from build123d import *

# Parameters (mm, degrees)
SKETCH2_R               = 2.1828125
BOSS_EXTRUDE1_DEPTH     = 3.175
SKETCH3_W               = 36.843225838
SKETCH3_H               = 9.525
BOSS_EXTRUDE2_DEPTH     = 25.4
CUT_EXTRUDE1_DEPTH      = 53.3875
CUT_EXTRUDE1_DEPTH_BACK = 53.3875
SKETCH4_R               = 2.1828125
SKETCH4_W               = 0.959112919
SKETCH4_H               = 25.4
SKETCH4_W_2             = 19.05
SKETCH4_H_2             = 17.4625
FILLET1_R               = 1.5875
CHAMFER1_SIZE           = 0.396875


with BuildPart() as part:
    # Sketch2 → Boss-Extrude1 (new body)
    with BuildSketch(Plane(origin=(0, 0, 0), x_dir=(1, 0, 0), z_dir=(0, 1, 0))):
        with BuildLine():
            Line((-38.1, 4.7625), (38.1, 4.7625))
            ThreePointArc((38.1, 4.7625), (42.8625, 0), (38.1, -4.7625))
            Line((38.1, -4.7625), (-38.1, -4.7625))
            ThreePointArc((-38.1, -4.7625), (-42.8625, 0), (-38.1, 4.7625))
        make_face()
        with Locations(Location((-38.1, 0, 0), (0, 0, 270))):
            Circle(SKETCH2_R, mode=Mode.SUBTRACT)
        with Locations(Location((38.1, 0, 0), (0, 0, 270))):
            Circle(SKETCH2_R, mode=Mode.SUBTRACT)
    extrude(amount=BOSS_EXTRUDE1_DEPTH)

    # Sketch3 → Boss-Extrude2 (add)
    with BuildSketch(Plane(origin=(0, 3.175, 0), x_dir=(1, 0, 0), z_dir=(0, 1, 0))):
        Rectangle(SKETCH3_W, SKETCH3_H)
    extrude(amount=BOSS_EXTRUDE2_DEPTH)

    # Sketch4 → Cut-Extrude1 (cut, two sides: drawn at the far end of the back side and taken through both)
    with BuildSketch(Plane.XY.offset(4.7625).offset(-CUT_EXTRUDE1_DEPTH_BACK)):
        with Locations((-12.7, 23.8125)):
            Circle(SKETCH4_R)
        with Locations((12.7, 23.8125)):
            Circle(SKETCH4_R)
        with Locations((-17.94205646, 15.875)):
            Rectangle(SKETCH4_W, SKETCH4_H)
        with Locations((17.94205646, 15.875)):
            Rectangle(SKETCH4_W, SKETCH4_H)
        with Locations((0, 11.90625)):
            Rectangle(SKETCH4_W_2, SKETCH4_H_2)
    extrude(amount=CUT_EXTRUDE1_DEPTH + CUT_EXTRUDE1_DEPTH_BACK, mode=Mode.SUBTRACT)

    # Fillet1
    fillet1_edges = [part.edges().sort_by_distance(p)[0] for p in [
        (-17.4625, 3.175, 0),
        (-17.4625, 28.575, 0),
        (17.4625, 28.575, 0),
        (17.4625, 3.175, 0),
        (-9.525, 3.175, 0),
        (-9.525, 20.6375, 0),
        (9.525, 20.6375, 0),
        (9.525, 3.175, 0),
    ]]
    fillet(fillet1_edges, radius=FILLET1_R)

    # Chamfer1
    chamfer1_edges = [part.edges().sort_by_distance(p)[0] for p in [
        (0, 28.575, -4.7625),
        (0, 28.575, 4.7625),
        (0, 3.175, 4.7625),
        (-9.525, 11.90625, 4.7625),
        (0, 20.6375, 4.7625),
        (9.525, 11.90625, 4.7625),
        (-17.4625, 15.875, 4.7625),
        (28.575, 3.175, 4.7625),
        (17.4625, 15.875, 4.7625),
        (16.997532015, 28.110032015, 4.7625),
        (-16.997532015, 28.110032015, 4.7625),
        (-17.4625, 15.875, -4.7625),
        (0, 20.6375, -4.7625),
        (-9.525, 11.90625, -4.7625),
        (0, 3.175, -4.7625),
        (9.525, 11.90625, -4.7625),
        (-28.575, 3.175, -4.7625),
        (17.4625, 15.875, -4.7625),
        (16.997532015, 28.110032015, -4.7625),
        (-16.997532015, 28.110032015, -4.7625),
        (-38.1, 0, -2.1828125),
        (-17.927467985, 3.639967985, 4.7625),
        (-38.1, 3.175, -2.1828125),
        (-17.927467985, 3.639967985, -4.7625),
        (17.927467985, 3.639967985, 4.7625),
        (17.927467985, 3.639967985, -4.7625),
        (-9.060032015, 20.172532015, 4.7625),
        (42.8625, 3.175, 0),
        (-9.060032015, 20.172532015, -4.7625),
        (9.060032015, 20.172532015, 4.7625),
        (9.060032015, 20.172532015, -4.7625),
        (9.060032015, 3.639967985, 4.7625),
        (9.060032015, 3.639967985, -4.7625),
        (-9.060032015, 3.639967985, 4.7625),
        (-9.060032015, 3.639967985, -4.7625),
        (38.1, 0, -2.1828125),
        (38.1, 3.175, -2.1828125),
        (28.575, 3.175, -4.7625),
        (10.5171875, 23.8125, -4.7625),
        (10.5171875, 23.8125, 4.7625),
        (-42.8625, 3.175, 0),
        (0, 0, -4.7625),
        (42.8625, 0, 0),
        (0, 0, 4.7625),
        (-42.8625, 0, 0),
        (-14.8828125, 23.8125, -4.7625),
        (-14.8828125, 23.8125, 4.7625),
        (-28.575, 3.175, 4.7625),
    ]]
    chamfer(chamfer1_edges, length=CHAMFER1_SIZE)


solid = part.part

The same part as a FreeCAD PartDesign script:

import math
import FreeCAD as App
import Part
import Sketcher
from FreeCAD import Vector
Q = App.Units.Quantity


def edges_at(feature, points):
    """Names of the edges that pass closest to the given points."""
    edges = feature.Shape.Edges
    near = lambda p: min(range(len(edges)), key=lambda i: edges[i].distToShape(Part.Vertex(*p))[0])
    return sorted({f"Edge{near(p) + 1}" for p in points})

doc = App.newDocument("Part")
params = doc.addObject("Spreadsheet::Sheet", "Params")
for row, (alias, value) in enumerate([
    ("sketch1_width", "3 in"),
    ("sketch1_diameter", "0.171875 in"),
    ("sketch1_radius", "0.1875 in"),
    ("pad1_length", "0.125 in"),
    ("sketch2_height", "0.375 in"),
    ("pad2_length", "1 in"),
    ("sketch3_height", "1 in"),
    ("sketch3_diameter", "0.171875 in"),
    ("sketch3_width", "0.75 in"),
    ("sketch3_height2", "0.6875 in"),
    ("fillet_radius", "0.0625 in"),
    ("chamfer_size", "0.015625 in"),
], start=1):
    params.set(f"A{row}", alias)
    params.set(f"B{row}", "=" + value)
    params.setAlias(f"B{row}", alias)

body = doc.addObject("PartDesign::Body", "Body")

sketch1 = body.newObject("Sketcher::SketchObject", "Sketch")
sketch1.AttachmentSupport = (doc.getObject("XZ_Plane"), [""])
sketch1.MapMode = "FlatFace"
sketch1.addGeometry([
    Part.LineSegment(Vector(38.1, -4.8, 0), Vector(-38.1, -4.8, 0)),
    Part.ArcOfCircle(Part.Circle(Vector(-38.1, 0, 0), Vector(0, 0, 1), 4.8), math.radians(90), math.radians(270)),
    Part.LineSegment(Vector(-38.1, 4.8, 0), Vector(38.1, 4.8, 0)),
    Part.ArcOfCircle(Part.Circle(Vector(38.1, 0, 0), Vector(0, 0, 1), 4.8), math.radians(-90), math.radians(90)),
    Part.Circle(Vector(38.1, 0, 0), Vector(0, 0, 1), 2.2),
    Part.Circle(Vector(-38.1, 0, 0), Vector(0, 0, 1), 2.2),
], False)
sketch1.addConstraint([
    Sketcher.Constraint("Tangent", 0, 2, 1, 2),
    Sketcher.Constraint("Tangent", 1, 1, 2, 1),
    Sketcher.Constraint("Tangent", 2, 2, 3, 2),
    Sketcher.Constraint("Tangent", 3, 1, 0, 1),
    Sketcher.Constraint("Horizontal", 0),
    Sketcher.Constraint("Horizontal", 2),
    Sketcher.Constraint("Coincident", 4, 3, 3, 3),
    Sketcher.Constraint("Coincident", 5, 3, 1, 3),
    Sketcher.Constraint("Equal", 4, 5),
    Sketcher.Constraint("Symmetric", 1, 3, 3, 3, -1, 1),
    Sketcher.Constraint("DistanceX", 0, 2, 0, 1, Q("3 in")),
    Sketcher.Constraint("Diameter", 4, Q("0.171875 in")),
    Sketcher.Constraint("Radius", 1, Q("0.1875 in")),
])
sketch1.setExpression("Constraints[10]", "Params.sketch1_width")
sketch1.setExpression("Constraints[11]", "Params.sketch1_diameter")
sketch1.setExpression("Constraints[12]", "Params.sketch1_radius")
pad1 = body.newObject("PartDesign::Pad", "Pad")
pad1.Profile = sketch1
pad1.setExpression("Length", "Params.pad1_length")
pad1.Reversed = True

sketch2 = body.newObject("Sketcher::SketchObject", "Sketch001")
sketch2.AttachmentSupport = (doc.getObject("XZ_Plane"), [""])
sketch2.MapMode = "FlatFace"
sketch2.AttachmentOffset = App.Placement(Vector(0, 0, -0.125 * 25.4), App.Rotation())
sketch2.addGeometry([
    Part.LineSegment(Vector(-18, -5, 0), Vector(-18, 5, 0)),
    Part.LineSegment(Vector(-18, 5, 0), Vector(18, 5, 0)),
    Part.LineSegment(Vector(18, 5, 0), Vector(18, -5, 0)),
    Part.LineSegment(Vector(18, -5, 0), Vector(-18, -5, 0)),
], False)
sketch2.addConstraint([
    Sketcher.Constraint("Coincident", 0, 2, 1, 1),
    Sketcher.Constraint("Coincident", 1, 2, 2, 1),
    Sketcher.Constraint("Coincident", 2, 2, 3, 1),
    Sketcher.Constraint("Coincident", 3, 2, 0, 1),
    Sketcher.Constraint("Vertical", 0),
    Sketcher.Constraint("Horizontal", 1),
    Sketcher.Constraint("Vertical", 2),
    Sketcher.Constraint("Horizontal", 3),
    Sketcher.Constraint("Symmetric", 0, 2, 2, 2, -1, 1),
    Sketcher.Constraint("DistanceY", 0, 1, 0, 2, Q("0.375 in")),
    Sketcher.Constraint("DistanceX", 1, 1, 1, 2, Q("36.843226 mm")),
])
sketch2.setExpression("Constraints[9]", "Params.sketch2_height")
pad2 = body.newObject("PartDesign::Pad", "Pad001")
pad2.Profile = sketch2
pad2.setExpression("Length", "Params.pad2_length")
pad2.Reversed = True

sketch3 = body.newObject("Sketcher::SketchObject", "Sketch002")
sketch3.AttachmentSupport = (doc.getObject("XY_Plane"), [""])
sketch3.MapMode = "FlatFace"
sketch3.AttachmentOffset = App.Placement(Vector(0, 0, 0.1875 * 25.4), App.Rotation())
sketch3.addGeometry([
    Part.Circle(Vector(-12.7, 23.8, 0), Vector(0, 0, 1), 2.2),
    Part.Circle(Vector(12.7, 23.8, 0), Vector(0, 0, 1), 2.2),
    Part.LineSegment(Vector(-18.4, 28.6, 0), Vector(-18.4, 3.2, 0)),
    Part.LineSegment(Vector(-18.4, 3.2, 0), Vector(-17.5, 3.2, 0)),
    Part.LineSegment(Vector(-17.5, 3.2, 0), Vector(-17.5, 28.6, 0)),
    Part.LineSegment(Vector(-17.5, 28.6, 0), Vector(-18.4, 28.6, 0)),
    Part.LineSegment(Vector(17.5, 28.6, 0), Vector(17.5, 3.2, 0)),
    Part.LineSegment(Vector(17.5, 3.2, 0), Vector(18.4, 3.2, 0)),
    Part.LineSegment(Vector(18.4, 3.2, 0), Vector(18.4, 28.6, 0)),
    Part.LineSegment(Vector(18.4, 28.6, 0), Vector(17.5, 28.6, 0)),
    Part.LineSegment(Vector(-9.5, 20.6, 0), Vector(-9.5, 3.2, 0)),
    Part.LineSegment(Vector(-9.5, 3.2, 0), Vector(9.5, 3.2, 0)),
    Part.LineSegment(Vector(9.5, 3.2, 0), Vector(9.5, 20.6, 0)),
    Part.LineSegment(Vector(9.5, 20.6, 0), Vector(-9.5, 20.6, 0)),
], False)
sketch3.addConstraint([
    Sketcher.Constraint("Coincident", 2, 2, 3, 1),
    Sketcher.Constraint("Coincident", 3, 2, 4, 1),
    Sketcher.Constraint("Coincident", 4, 2, 5, 1),
    Sketcher.Constraint("Coincident", 5, 2, 2, 1),
    Sketcher.Constraint("Coincident", 6, 2, 7, 1),
    Sketcher.Constraint("Coincident", 7, 2, 8, 1),
    Sketcher.Constraint("Coincident", 8, 2, 9, 1),
    Sketcher.Constraint("Coincident", 9, 2, 6, 1),
    Sketcher.Constraint("Coincident", 10, 2, 11, 1),
    Sketcher.Constraint("Coincident", 11, 2, 12, 1),
    Sketcher.Constraint("Coincident", 12, 2, 13, 1),
    Sketcher.Constraint("Coincident", 13, 2, 10, 1),
    Sketcher.Constraint("Vertical", 2),
    Sketcher.Constraint("Horizontal", 3),
    Sketcher.Constraint("Vertical", 4),
    Sketcher.Constraint("Horizontal", 5),
    Sketcher.Constraint("Vertical", 6),
    Sketcher.Constraint("Horizontal", 7),
    Sketcher.Constraint("Vertical", 8),
    Sketcher.Constraint("Horizontal", 9),
    Sketcher.Constraint("Vertical", 10),
    Sketcher.Constraint("Horizontal", 11),
    Sketcher.Constraint("Vertical", 12),
    Sketcher.Constraint("Horizontal", 13),
    Sketcher.Constraint("Equal", 0, 1),
    Sketcher.Constraint("Symmetric", 0, 3, 1, 3, -2),
    Sketcher.Constraint("Symmetric", 3, 2, 6, 2, -2),
    Sketcher.Constraint("Symmetric", 5, 2, 8, 2, -2),
    Sketcher.Constraint("Horizontal", 7, 2, 10, 2),
    Sketcher.Constraint("DistanceY", 2, 2, 2, 1, Q("1 in")),
    Sketcher.Constraint("Diameter", 0, Q("0.171875 in")),
    Sketcher.Constraint("DistanceX", 0, 3, 1, 3, Q("1 in")),
    Sketcher.Constraint("DistanceX", 11, 1, 11, 2, Q("0.75 in")),
    Sketcher.Constraint("DistanceY", 10, 2, 10, 1, Q("0.6875 in")),
    Sketcher.Constraint("DistanceY", -1, 1, 0, 3, Q("0.9375 in")),
    Sketcher.Constraint("DistanceY", -1, 1, 2, 2, Q("0.125 in")),
    Sketcher.Constraint("DistanceX", 3, 2, -1, 1, Q("0.6875 in")),
    Sketcher.Constraint("DistanceX", 10, 2, -1, 1, Q("0.375 in")),
    Sketcher.Constraint("DistanceX", 3, 1, 3, 2, Q("0.959113 mm")),
])
sketch3.setExpression("Constraints[29]", "Params.sketch3_height")
sketch3.setExpression("Constraints[30]", "Params.sketch3_diameter")
sketch3.setExpression("Constraints[32]", "Params.sketch3_width")
sketch3.setExpression("Constraints[33]", "Params.sketch3_height2")
pocket1 = body.newObject("PartDesign::Pocket", "Pocket")
pocket1.Profile = sketch3
pocket1.Type = "ThroughAll"
pocket1.Midplane = True
doc.recompute()

fillet = body.newObject("PartDesign::Fillet", "Fillet")
fillet.Base = (pocket1, edges_at(pocket1, [
    (-17.463, 3.175, 0),
    (-17.463, 28.575, 0),
    (17.463, 28.575, 0),
    (17.463, 3.175, 0),
    (-9.525, 3.175, 0),
    (-9.525, 20.637, 0),
    (9.525, 20.637, 0),
    (9.525, 3.175, 0),
]))
fillet.setExpression("Radius", "Params.fillet_radius")
doc.recompute()

chamfer = body.newObject("PartDesign::Chamfer", "Chamfer")
chamfer.Base = (fillet, edges_at(fillet, [
    (0, 28.575, -4.763),
    (0, 28.575, 4.763),
    (0, 3.175, 4.763),
    (-9.525, 11.906, 4.763),
    (0, 20.637, 4.763),
    (9.525, 11.906, 4.763),
    (-17.463, 15.875, 4.763),
    (28.575, 3.175, 4.763),
    (17.463, 15.875, 4.763),
    (16.998, 28.11, 4.763),
    (-16.998, 28.11, 4.763),
    (-17.463, 15.875, -4.763),
    (0, 20.637, -4.763),
    (-9.525, 11.906, -4.763),
    (0, 3.175, -4.763),
    (9.525, 11.906, -4.763),
    (-28.575, 3.175, -4.763),
    (17.463, 15.875, -4.763),
    (16.998, 28.11, -4.763),
    (-16.998, 28.11, -4.763),
    (-38.1, 0, -2.183),
    (-17.927, 3.64, 4.763),
    (-38.1, 3.175, -2.183),
    (-17.927, 3.64, -4.763),
    (17.927, 3.64, 4.763),
    (17.927, 3.64, -4.763),
    (-9.06, 20.173, 4.763),
    (42.862, 3.175, 0),
    (-9.06, 20.173, -4.763),
    (9.06, 20.173, 4.763),
    (9.06, 20.173, -4.763),
    (9.06, 3.64, 4.763),
    (9.06, 3.64, -4.763),
    (-9.06, 3.64, 4.763),
    (-9.06, 3.64, -4.763),
    (38.1, 0, -2.183),
    (38.1, 3.175, -2.183),
    (28.575, 3.175, -4.763),
    (10.517, 23.812, -4.763),
    (10.517, 23.812, 4.763),
    (-42.862, 3.175, 0),
    (0, 0, -4.763),
    (42.862, 0, 0),
    (0, 0, 4.763),
    (-42.862, 0, 0),
    (-14.883, 23.812, -4.763),
    (-14.883, 23.812, 4.763),
    (-28.575, 3.175, 4.763),
]))
chamfer.setExpression("Size", "Params.chamfer_size")

doc.recompute()
